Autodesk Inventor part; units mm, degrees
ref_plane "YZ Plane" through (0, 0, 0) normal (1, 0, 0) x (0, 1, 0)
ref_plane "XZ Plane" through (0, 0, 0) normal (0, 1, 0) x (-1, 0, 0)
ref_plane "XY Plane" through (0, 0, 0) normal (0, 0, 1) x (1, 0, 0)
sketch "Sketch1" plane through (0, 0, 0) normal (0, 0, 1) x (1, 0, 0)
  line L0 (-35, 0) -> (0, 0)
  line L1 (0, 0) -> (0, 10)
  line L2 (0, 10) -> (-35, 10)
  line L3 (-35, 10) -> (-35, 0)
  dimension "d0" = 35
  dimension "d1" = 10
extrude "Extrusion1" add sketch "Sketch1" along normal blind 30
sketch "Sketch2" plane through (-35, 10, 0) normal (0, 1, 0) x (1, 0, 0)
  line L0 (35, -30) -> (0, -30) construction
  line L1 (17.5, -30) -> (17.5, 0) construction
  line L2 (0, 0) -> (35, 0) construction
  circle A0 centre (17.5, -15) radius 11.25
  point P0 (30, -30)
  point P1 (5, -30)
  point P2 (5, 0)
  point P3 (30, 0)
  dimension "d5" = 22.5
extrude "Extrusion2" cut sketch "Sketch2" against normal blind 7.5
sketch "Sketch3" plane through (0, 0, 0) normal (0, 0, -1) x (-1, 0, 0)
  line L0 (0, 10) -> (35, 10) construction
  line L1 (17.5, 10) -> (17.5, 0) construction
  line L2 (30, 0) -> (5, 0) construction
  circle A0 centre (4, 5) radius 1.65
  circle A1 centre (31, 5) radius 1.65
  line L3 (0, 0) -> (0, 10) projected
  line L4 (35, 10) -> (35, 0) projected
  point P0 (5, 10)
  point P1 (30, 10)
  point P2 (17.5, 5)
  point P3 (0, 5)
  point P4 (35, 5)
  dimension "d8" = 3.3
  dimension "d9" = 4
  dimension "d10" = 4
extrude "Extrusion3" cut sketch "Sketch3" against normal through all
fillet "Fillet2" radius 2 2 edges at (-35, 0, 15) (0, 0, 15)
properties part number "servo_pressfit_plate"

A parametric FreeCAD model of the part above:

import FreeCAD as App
import Part
import Sketcher
from FreeCAD import Vector
Q = App.Units.Quantity


def edges_at(feature, points):
    """Names of the edges that pass closest to the given points."""
    edges = feature.Shape.Edges
    near = lambda p: min(range(len(edges)), key=lambda i: edges[i].distToShape(Part.Vertex(*p))[0])
    return sorted({f"Edge{near(p) + 1}" for p in points})


def add_polygon(sketch, points):
    """Adds a closed chain of lines whose ends are joined by coincident constraints."""
    first, n = sketch.GeometryCount, len(points)
    for a, b in zip(points, points[1:] + points[:1]):
        sketch.addGeometry(Part.LineSegment(App.Vector(*a, 0), App.Vector(*b, 0)), False)
    for i in range(n):
        sketch.addConstraint(Sketcher.Constraint("Coincident", first + i, 2, first + (i + 1) % n, 1))

doc = App.newDocument("Part")
body = doc.addObject("PartDesign::Body", "Body")

# Sketch on XY plane
sketch1 = body.newObject("Sketcher::SketchObject", "Sketch")
sketch1.AttachmentSupport = (doc.getObject("XY_Plane"), [""])
sketch1.MapMode = "FlatFace"
add_polygon(sketch1, [(-35, 10), (-35, 0), (0, 0), (0, 10)])  # lines 0-3
sketch1.addConstraint(Sketcher.Constraint("Vertical", 0))
sketch1.addConstraint(Sketcher.Constraint("Horizontal", 1))
sketch1.addConstraint(Sketcher.Constraint("Vertical", 2))
sketch1.addConstraint(Sketcher.Constraint("Horizontal", 3))
sketch1.addConstraint(Sketcher.Constraint("Coincident", 1, 2, -1, 1))
sketch1.addConstraint(Sketcher.Constraint("DistanceX", 1, 1, 1, 2, Q("35 mm")))
sketch1.addConstraint(Sketcher.Constraint("DistanceY", 0, 2, 0, 1, Q("10 mm")))
pad1 = body.newObject("PartDesign::Pad", "Pad")
pad1.Profile = sketch1
pad1.Length = 30

# Sketch on XZ plane
sketch2 = body.newObject("Sketcher::SketchObject", "Sketch001")
sketch2.AttachmentSupport = (doc.getObject("XZ_Plane"), [""])
sketch2.MapMode = "FlatFace"
sketch2.AttachmentOffset = App.Placement(Vector(0, 0, -10), App.Rotation())
sketch2.addGeometry(Part.Circle(Vector(-17.5, 15, 0), Vector(0, 0, 1), 11.25), False)
sketch2.addConstraint(Sketcher.Constraint("Diameter", 0, Q("22.5 mm")))
sketch2.addConstraint(Sketcher.Constraint("DistanceY", -1, 1, 0, 3, Q("15 mm")))
sketch2.addConstraint(Sketcher.Constraint("DistanceX", 0, 3, -1, 1, Q("17.5 mm")))
pocket1 = body.newObject("PartDesign::Pocket", "Pocket")
pocket1.Profile = sketch2
pocket1.Length = 7.5
pocket1.Reversed = True

# Sketch on XY plane
sketch3 = body.newObject("Sketcher::SketchObject", "Sketch002")
sketch3.AttachmentSupport = (doc.getObject("XY_Plane"), [""])
sketch3.MapMode = "FlatFace"
sketch3.addGeometry(Part.Circle(Vector(-4, 5, 0), Vector(0, 0, 1), 1.65), False)
sketch3.addGeometry(Part.Circle(Vector(-31, 5, 0), Vector(0, 0, 1), 1.65), False)
sketch3.addConstraint(Sketcher.Constraint("Equal", 0, 1))
sketch3.addConstraint(Sketcher.Constraint("Horizontal", 0, 3, 1, 3))
sketch3.addConstraint(Sketcher.Constraint("Diameter", 0, Q("3.3 mm")))
sketch3.addConstraint(Sketcher.Constraint("DistanceX", 0, 3, -1, 1, Q("4 mm")))
sketch3.addConstraint(Sketcher.Constraint("DistanceY", -1, 1, 0, 3, Q("5 mm")))
sketch3.addConstraint(Sketcher.Constraint("DistanceX", 1, 3, -1, 1, Q("31 mm")))
pocket2 = body.newObject("PartDesign::Pocket", "Pocket001")
pocket2.Profile = sketch3
pocket2.Type = "ThroughAll"
pocket2.Reversed = True
doc.recompute()

fillet = body.newObject("PartDesign::Fillet", "Fillet")
fillet.Base = (pocket2, edges_at(pocket2, [(-35, 0, 15), (0, 0, 15)]))
fillet.Radius = 2

doc.recompute()
